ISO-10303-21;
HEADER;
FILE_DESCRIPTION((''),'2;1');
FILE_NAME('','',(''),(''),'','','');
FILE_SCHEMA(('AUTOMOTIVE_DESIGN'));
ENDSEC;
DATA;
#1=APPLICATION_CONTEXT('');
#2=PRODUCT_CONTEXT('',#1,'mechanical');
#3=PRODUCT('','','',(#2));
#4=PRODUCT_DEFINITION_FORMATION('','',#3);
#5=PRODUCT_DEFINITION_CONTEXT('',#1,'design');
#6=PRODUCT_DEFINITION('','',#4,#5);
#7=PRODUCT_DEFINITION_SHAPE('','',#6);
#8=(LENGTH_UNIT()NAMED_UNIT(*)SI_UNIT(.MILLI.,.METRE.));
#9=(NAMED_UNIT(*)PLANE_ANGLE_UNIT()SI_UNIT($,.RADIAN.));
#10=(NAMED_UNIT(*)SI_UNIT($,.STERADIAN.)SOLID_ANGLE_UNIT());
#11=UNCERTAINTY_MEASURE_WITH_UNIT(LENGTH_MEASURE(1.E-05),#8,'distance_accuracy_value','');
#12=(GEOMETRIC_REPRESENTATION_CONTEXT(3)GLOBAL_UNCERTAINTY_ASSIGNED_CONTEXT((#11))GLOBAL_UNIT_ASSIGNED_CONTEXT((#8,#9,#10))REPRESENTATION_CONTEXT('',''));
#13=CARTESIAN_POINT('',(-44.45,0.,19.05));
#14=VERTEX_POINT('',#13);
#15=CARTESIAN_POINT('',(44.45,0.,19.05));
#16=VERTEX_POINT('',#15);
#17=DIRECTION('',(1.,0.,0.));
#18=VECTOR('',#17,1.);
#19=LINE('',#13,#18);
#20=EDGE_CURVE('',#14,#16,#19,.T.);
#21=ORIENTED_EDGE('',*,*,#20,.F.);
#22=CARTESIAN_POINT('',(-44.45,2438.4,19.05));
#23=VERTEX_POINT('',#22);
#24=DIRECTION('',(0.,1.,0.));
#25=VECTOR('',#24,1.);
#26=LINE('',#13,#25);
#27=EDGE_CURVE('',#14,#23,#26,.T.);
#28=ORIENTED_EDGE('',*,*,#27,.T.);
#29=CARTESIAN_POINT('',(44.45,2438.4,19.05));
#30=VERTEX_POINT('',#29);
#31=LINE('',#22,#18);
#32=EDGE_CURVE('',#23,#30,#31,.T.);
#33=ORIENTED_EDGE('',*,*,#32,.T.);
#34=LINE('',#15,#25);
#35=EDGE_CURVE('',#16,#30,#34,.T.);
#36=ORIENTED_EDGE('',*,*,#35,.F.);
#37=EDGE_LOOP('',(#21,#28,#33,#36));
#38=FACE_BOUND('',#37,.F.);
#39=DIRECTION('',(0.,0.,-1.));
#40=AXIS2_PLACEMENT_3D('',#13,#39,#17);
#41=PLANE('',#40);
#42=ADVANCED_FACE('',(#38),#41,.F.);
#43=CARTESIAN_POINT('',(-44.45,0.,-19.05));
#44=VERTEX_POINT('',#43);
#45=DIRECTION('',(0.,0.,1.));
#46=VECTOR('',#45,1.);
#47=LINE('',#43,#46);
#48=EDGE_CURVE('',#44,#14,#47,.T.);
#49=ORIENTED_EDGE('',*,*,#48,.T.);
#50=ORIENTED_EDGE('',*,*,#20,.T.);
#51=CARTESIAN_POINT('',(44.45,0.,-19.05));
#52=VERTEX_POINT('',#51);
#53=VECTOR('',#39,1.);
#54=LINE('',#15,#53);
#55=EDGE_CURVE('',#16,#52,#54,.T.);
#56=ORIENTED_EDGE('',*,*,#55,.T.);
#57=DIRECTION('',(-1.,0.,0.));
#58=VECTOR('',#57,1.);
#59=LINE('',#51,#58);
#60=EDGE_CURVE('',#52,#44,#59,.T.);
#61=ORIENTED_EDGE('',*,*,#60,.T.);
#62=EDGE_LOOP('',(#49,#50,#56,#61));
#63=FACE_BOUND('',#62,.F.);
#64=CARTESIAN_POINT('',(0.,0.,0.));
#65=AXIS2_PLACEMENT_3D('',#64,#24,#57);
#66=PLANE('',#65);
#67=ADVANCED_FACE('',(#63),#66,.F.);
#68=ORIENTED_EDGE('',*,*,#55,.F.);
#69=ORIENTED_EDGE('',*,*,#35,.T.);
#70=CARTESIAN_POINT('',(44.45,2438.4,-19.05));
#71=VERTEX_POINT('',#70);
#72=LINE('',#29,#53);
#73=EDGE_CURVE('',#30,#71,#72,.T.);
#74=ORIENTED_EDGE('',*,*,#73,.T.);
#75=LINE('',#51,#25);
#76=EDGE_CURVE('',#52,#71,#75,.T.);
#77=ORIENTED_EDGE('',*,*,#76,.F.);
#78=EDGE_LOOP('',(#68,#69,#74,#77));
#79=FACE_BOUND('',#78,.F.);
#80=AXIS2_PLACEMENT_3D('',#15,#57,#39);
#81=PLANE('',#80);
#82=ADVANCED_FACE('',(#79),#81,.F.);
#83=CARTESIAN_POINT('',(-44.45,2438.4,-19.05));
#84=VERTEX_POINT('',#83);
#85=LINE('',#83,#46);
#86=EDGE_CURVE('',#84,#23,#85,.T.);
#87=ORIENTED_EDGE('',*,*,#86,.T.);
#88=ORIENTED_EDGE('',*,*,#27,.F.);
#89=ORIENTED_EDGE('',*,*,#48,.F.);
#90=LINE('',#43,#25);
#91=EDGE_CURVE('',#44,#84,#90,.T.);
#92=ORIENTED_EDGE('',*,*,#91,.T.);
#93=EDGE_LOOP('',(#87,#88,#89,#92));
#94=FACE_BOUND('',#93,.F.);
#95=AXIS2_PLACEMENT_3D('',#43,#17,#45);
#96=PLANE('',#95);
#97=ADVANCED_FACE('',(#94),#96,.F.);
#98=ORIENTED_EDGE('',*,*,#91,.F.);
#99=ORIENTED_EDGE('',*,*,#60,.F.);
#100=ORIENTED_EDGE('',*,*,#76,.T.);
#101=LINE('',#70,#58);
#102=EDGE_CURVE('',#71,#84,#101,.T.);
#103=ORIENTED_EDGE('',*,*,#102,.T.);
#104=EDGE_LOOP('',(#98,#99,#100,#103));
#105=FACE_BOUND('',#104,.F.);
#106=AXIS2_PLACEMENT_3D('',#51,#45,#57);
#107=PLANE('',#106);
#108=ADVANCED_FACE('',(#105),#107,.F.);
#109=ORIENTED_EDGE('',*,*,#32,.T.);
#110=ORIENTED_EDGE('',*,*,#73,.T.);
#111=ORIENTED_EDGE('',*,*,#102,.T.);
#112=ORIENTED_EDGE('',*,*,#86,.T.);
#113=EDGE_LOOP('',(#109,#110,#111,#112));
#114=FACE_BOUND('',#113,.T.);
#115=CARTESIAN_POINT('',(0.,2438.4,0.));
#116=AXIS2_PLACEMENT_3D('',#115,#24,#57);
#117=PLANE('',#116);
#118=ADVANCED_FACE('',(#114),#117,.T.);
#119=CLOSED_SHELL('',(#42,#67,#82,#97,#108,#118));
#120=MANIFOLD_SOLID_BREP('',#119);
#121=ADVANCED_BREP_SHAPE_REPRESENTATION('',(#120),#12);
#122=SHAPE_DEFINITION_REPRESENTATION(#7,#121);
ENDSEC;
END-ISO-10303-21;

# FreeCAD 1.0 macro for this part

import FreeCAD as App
import Part
import Sketcher
from FreeCAD import Vector
Q = App.Units.Quantity


def add_polygon(sketch, points):
    """Adds a closed chain of lines whose ends are joined by coincident constraints."""
    first, n = sketch.GeometryCount, len(points)
    for a, b in zip(points, points[1:] + points[:1]):
        sketch.addGeometry(Part.LineSegment(App.Vector(*a, 0), App.Vector(*b, 0)), False)
    for i in range(n):
        sketch.addConstraint(Sketcher.Constraint("Coincident", first + i, 2, first + (i + 1) % n, 1))

doc = App.newDocument("Part")
body = doc.addObject("PartDesign::Body", "Body")

# Sketch on XZ plane
sketch1 = body.newObject("Sketcher::SketchObject", "Sketch")
sketch1.AttachmentSupport = (doc.getObject("XZ_Plane"), [""])
sketch1.MapMode = "FlatFace"
add_polygon(sketch1, [(44, 19), (44, -19), (-44, -19), (-44, 19)])  # lines 0-3
sketch1.addConstraint([
    Sketcher.Constraint("Vertical", 0),
    Sketcher.Constraint("Horizontal", 1),
    Sketcher.Constraint("Vertical", 2),
    Sketcher.Constraint("Horizontal", 3),
    Sketcher.Constraint("Symmetric", 0, 2, 2, 2, -1, 1),
    Sketcher.Constraint("DistanceX", 1, 2, 1, 1, Q("3.5 in")),
    Sketcher.Constraint("DistanceY", 0, 2, 0, 1, Q("1.5 in")),
])
pad1 = body.newObject("PartDesign::Pad", "Pad")
pad1.Profile = sketch1
pad1.Length = Q("96 in")
pad1.Reversed = True

doc.recompute()
